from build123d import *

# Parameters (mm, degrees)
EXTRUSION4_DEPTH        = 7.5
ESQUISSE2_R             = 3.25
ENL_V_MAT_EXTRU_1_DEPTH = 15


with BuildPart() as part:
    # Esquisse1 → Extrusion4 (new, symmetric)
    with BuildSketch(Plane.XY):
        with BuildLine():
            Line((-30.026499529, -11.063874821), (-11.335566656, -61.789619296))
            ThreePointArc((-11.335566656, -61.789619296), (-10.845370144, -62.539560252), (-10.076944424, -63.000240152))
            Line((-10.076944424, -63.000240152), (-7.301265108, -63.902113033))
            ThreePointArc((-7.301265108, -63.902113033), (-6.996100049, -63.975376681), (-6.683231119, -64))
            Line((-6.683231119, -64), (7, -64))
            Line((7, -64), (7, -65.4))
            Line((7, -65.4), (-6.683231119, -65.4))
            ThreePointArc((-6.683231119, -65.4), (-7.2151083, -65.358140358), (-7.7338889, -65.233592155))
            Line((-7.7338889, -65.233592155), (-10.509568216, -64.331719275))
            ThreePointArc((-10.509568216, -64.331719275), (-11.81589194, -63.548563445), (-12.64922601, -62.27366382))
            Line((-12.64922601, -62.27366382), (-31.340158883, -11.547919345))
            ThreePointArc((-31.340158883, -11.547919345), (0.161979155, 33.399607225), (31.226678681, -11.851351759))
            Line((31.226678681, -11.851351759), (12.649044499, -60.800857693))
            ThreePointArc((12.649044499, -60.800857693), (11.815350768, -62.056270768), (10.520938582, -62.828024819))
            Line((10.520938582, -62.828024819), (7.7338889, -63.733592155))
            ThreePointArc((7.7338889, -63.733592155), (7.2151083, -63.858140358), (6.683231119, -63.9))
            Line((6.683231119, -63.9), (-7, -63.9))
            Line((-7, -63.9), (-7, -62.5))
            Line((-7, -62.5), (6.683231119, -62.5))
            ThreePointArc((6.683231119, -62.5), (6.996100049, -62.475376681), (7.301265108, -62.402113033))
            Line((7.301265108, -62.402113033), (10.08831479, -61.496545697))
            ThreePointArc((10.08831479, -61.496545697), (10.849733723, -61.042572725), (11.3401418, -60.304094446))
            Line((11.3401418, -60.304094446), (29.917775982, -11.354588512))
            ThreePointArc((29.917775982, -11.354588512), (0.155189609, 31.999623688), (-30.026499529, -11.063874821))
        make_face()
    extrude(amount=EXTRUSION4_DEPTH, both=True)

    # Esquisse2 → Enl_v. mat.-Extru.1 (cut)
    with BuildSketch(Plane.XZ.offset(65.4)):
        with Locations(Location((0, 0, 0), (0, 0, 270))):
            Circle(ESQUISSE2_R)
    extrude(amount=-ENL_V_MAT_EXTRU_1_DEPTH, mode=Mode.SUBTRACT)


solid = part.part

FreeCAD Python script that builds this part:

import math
import FreeCAD as App
import Part
import Sketcher

V = App.Vector
Q = App.Units.Quantity

doc = App.newDocument("Part")
params = doc.addObject("Spreadsheet::Sheet", "Params")
for row, (alias, value) in enumerate([
    ("sketch1_radius", "32 mm"),
    ("sketch1_radius2", "2 mm"),
    ("sketch1_radius3", "3.4 mm"),
    ("pad1_length", "15 mm"),
    ("sketch2_diameter", "6.5 mm"),
    ("pocket1_length", "15 mm"),
], start=1):
    params.set(f"A{row}", alias)
    params.set(f"B{row}", "=" + value)
    params.setAlias(f"B{row}", alias)

body = doc.addObject("PartDesign::Body", "Body")

# Sketch on XY plane
sketch1 = doc.addObject("Sketcher::SketchObject", "Sketch")
body.addObject(sketch1)
sketch1.AttachmentSupport = (doc.XY_Plane, [""])
sketch1.MapMode = "FlatFace"
sketch1.addGeometry(Part.LineSegment(V(-11.3, -61.8, 0), V(-30, -11.1, 0)), False)
sketch1.addGeometry(Part.ArcOfCircle(Part.Circle(V(0, 0, 0), V(0, 0, 1), 32), math.radians(-21), math.radians(200)), False)
sketch1.addGeometry(Part.LineSegment(V(29.9, -11.4, 0), V(11.3, -60.3, 0)), False)
sketch1.addGeometry(Part.ArcOfCircle(Part.Circle(V(9.5, -59.6, 0), V(0, 0, 1), 2), math.radians(-72), math.radians(-21)), False)
sketch1.addGeometry(Part.LineSegment(V(10.1, -61.5, 0), V(7.3, -62.4, 0)), False)
sketch1.addGeometry(Part.ArcOfCircle(Part.Circle(V(6.7, -60.5, 0), V(0, 0, 1), 2), math.radians(-90), math.radians(-72)), False)
sketch1.addGeometry(Part.LineSegment(V(6.7, -62.5, 0), V(-7, -62.5, 0)), False)
sketch1.addGeometry(Part.LineSegment(V(-7, -62.5, 0), V(-7, -63.9, 0)), False)
sketch1.addGeometry(Part.LineSegment(V(-7, -63.9, 0), V(6.7, -63.9, 0)), False)
sketch1.addGeometry(Part.ArcOfCircle(Part.Circle(V(6.7, -60.5, 0), V(0, 0, 1), 3.4), math.radians(-90), math.radians(-72)), False)
sketch1.addGeometry(Part.LineSegment(V(7.7, -63.7, 0), V(10.5, -62.8, 0)), False)
sketch1.addGeometry(Part.ArcOfCircle(Part.Circle(V(9.5, -59.6, 0), V(0, 0, 1), 3.4), math.radians(-72), math.radians(-21)), False)
sketch1.addGeometry(Part.LineSegment(V(12.6, -60.8, 0), V(31.2, -11.9, 0)), False)
sketch1.addGeometry(Part.ArcOfCircle(Part.Circle(V(0, 0, 0), V(0, 0, 1), 33.4), math.radians(-21), math.radians(200)), False)
sketch1.addGeometry(Part.LineSegment(V(-31.3, -11.5, 0), V(-12.6, -62.3, 0)), False)
sketch1.addGeometry(Part.ArcOfCircle(Part.Circle(V(-9.5, -61.1, 0), V(0, 0, 1), 3.4), math.radians(-160), math.radians(-108)), False)
sketch1.addGeometry(Part.LineSegment(V(-10.5, -64.3, 0), V(-7.7, -65.2, 0)), False)
sketch1.addGeometry(Part.ArcOfCircle(Part.Circle(V(-6.7, -62, 0), V(0, 0, 1), 3.4), math.radians(-108), math.radians(-90)), False)
sketch1.addGeometry(Part.LineSegment(V(-6.7, -65.4, 0), V(7, -65.4, 0)), False)
sketch1.addGeometry(Part.LineSegment(V(7, -65.4, 0), V(7, -64, 0)), False)
sketch1.addGeometry(Part.LineSegment(V(7, -64, 0), V(-6.7, -64, 0)), False)
sketch1.addGeometry(Part.ArcOfCircle(Part.Circle(V(-6.7, -62, 0), V(0, 0, 1), 2), math.radians(-108), math.radians(-90)), False)
sketch1.addGeometry(Part.LineSegment(V(-7.3, -63.9, 0), V(-10.1, -63, 0)), False)
sketch1.addGeometry(Part.ArcOfCircle(Part.Circle(V(-9.5, -61.1, 0), V(0, 0, 1), 2), math.radians(-160), math.radians(-108)), False)
sketch1.addConstraint(Sketcher.Constraint("Tangent", 0, 2, 1, 2))
sketch1.addConstraint(Sketcher.Constraint("Tangent", 1, 1, 2, 1))
sketch1.addConstraint(Sketcher.Constraint("Tangent", 2, 2, 3, 2))
sketch1.addConstraint(Sketcher.Constraint("Tangent", 3, 1, 4, 1))
sketch1.addConstraint(Sketcher.Constraint("Tangent", 4, 2, 5, 2))
sketch1.addConstraint(Sketcher.Constraint("Tangent", 5, 1, 6, 1))
sketch1.addConstraint(Sketcher.Constraint("Coincident", 6, 2, 7, 1))
sketch1.addConstraint(Sketcher.Constraint("Coincident", 7, 2, 8, 1))
sketch1.addConstraint(Sketcher.Constraint("Tangent", 8, 2, 9, 1))
sketch1.addConstraint(Sketcher.Constraint("Tangent", 9, 2, 10, 1))
sketch1.addConstraint(Sketcher.Constraint("Tangent", 10, 2, 11, 1))
sketch1.addConstraint(Sketcher.Constraint("Tangent", 11, 2, 12, 1))
sketch1.addConstraint(Sketcher.Constraint("Tangent", 12, 2, 13, 1))
sketch1.addConstraint(Sketcher.Constraint("Tangent", 13, 2, 14, 1))
sketch1.addConstraint(Sketcher.Constraint("Tangent", 14, 2, 15, 1))
sketch1.addConstraint(Sketcher.Constraint("Tangent", 15, 2, 16, 1))
sketch1.addConstraint(Sketcher.Constraint("Tangent", 16, 2, 17, 1))
sketch1.addConstraint(Sketcher.Constraint("Tangent", 17, 2, 18, 1))
sketch1.addConstraint(Sketcher.Constraint("Coincident", 18, 2, 19, 1))
sketch1.addConstraint(Sketcher.Constraint("Coincident", 19, 2, 20, 1))
sketch1.addConstraint(Sketcher.Constraint("Tangent", 20, 2, 21, 2))
sketch1.addConstraint(Sketcher.Constraint("Tangent", 21, 1, 22, 1))
sketch1.addConstraint(Sketcher.Constraint("Tangent", 22, 2, 23, 2))
sketch1.addConstraint(Sketcher.Constraint("Tangent", 23, 1, 0, 1))
sketch1.addConstraint(Sketcher.Constraint("Horizontal", 6))
sketch1.addConstraint(Sketcher.Constraint("Vertical", 7))
sketch1.addConstraint(Sketcher.Constraint("Horizontal", 8))
sketch1.addConstraint(Sketcher.Constraint("Horizontal", 18))
sketch1.addConstraint(Sketcher.Constraint("Vertical", 19))
sketch1.addConstraint(Sketcher.Constraint("Horizontal", 20))
sketch1.addConstraint(Sketcher.Constraint("Coincident", 1, 3, -1, 1))
sketch1.addConstraint(Sketcher.Constraint("Coincident", 13, 3, -1, 1))
sketch1.addConstraint(Sketcher.Constraint("Coincident", 9, 3, 5, 3))
sketch1.addConstraint(Sketcher.Constraint("Coincident", 11, 3, 3, 3))
sketch1.addConstraint(Sketcher.Constraint("Coincident", 21, 3, 17, 3))
sketch1.addConstraint(Sketcher.Constraint("Coincident", 23, 3, 15, 3))
sketch1.addConstraint(Sketcher.Constraint("Equal", 3, 5))
sketch1.addConstraint(Sketcher.Constraint("Equal", 9, 11))
sketch1.addConstraint(Sketcher.Constraint("Equal", 11, 15))
sketch1.addConstraint(Sketcher.Constraint("Equal", 15, 17))
sketch1.addConstraint(Sketcher.Constraint("Equal", 5, 21))
sketch1.addConstraint(Sketcher.Constraint("Equal", 21, 23))
sketch1.addConstraint(Sketcher.Constraint("Parallel", 2, 12))
sketch1.addConstraint(Sketcher.Constraint("Equal", 8, 18))
sketch1.addConstraint(Sketcher.Constraint("Radius", 1, 32.0))
sketch1.addConstraint(Sketcher.Constraint("Radius", 3, 2.0))
sketch1.addConstraint(Sketcher.Constraint("Radius", 9, 3.4))
sketch1.addConstraint(Sketcher.Constraint("Angle", 4, Q("-162 deg")))
sketch1.addConstraint(Sketcher.Constraint("Angle", 16, Q("-18 deg")))
sketch1.addConstraint(Sketcher.Constraint("DistanceY", 17, 3, -1, 1, 62.0))
sketch1.addConstraint(Sketcher.Constraint("DistanceX", 6, 2, -1, 1, 7.0))
sketch1.addConstraint(Sketcher.Constraint("DistanceX", -1, 1, 18, 2, 7.0))
sketch1.addConstraint(Sketcher.Constraint("DistanceY", 5, 3, -1, 1, 60.5))
sketch1.addConstraint(Sketcher.Constraint("DistanceX", 6, 2, 6, 1, 13.683231))
sketch1.addConstraint(Sketcher.Constraint("DistanceX", 0, 2, -1, 1, 30.0265))
sketch1.addConstraint(Sketcher.Constraint("DistanceX", -1, 1, 3, 3, 9.470281))
sketch1.setExpression("Constraints[44]", "Params.sketch1_radius")
sketch1.setExpression("Constraints[45]", "Params.sketch1_radius2")
sketch1.setExpression("Constraints[46]", "Params.sketch1_radius3")
pad1 = doc.addObject("PartDesign::Pad", "Pad")
body.addObject(pad1)
pad1.Profile = sketch1
pad1.setExpression("Length", "Params.pad1_length")
pad1.Midplane = True

# Sketch on XZ plane
sketch2 = doc.addObject("Sketcher::SketchObject", "Sketch001")
body.addObject(sketch2)
sketch2.AttachmentSupport = (doc.XZ_Plane, [""])
sketch2.MapMode = "FlatFace"
sketch2.AttachmentOffset = App.Placement(V(0, 0, 65.4), App.Rotation())
sketch2.addGeometry(Part.Circle(V(0, 0, 0), V(0, 0, 1), 3.2), False)
sketch2.addConstraint(Sketcher.Constraint("Coincident", 0, 3, -1, 1))
sketch2.addConstraint(Sketcher.Constraint("Diameter", 0, 6.5))
sketch2.setExpression("Constraints[1]", "Params.sketch2_diameter")
pocket1 = doc.addObject("PartDesign::Pocket", "Pocket")
body.addObject(pocket1)
pocket1.Profile = sketch2
pocket1.setExpression("Length", "Params.pocket1_length")

doc.recompute()
